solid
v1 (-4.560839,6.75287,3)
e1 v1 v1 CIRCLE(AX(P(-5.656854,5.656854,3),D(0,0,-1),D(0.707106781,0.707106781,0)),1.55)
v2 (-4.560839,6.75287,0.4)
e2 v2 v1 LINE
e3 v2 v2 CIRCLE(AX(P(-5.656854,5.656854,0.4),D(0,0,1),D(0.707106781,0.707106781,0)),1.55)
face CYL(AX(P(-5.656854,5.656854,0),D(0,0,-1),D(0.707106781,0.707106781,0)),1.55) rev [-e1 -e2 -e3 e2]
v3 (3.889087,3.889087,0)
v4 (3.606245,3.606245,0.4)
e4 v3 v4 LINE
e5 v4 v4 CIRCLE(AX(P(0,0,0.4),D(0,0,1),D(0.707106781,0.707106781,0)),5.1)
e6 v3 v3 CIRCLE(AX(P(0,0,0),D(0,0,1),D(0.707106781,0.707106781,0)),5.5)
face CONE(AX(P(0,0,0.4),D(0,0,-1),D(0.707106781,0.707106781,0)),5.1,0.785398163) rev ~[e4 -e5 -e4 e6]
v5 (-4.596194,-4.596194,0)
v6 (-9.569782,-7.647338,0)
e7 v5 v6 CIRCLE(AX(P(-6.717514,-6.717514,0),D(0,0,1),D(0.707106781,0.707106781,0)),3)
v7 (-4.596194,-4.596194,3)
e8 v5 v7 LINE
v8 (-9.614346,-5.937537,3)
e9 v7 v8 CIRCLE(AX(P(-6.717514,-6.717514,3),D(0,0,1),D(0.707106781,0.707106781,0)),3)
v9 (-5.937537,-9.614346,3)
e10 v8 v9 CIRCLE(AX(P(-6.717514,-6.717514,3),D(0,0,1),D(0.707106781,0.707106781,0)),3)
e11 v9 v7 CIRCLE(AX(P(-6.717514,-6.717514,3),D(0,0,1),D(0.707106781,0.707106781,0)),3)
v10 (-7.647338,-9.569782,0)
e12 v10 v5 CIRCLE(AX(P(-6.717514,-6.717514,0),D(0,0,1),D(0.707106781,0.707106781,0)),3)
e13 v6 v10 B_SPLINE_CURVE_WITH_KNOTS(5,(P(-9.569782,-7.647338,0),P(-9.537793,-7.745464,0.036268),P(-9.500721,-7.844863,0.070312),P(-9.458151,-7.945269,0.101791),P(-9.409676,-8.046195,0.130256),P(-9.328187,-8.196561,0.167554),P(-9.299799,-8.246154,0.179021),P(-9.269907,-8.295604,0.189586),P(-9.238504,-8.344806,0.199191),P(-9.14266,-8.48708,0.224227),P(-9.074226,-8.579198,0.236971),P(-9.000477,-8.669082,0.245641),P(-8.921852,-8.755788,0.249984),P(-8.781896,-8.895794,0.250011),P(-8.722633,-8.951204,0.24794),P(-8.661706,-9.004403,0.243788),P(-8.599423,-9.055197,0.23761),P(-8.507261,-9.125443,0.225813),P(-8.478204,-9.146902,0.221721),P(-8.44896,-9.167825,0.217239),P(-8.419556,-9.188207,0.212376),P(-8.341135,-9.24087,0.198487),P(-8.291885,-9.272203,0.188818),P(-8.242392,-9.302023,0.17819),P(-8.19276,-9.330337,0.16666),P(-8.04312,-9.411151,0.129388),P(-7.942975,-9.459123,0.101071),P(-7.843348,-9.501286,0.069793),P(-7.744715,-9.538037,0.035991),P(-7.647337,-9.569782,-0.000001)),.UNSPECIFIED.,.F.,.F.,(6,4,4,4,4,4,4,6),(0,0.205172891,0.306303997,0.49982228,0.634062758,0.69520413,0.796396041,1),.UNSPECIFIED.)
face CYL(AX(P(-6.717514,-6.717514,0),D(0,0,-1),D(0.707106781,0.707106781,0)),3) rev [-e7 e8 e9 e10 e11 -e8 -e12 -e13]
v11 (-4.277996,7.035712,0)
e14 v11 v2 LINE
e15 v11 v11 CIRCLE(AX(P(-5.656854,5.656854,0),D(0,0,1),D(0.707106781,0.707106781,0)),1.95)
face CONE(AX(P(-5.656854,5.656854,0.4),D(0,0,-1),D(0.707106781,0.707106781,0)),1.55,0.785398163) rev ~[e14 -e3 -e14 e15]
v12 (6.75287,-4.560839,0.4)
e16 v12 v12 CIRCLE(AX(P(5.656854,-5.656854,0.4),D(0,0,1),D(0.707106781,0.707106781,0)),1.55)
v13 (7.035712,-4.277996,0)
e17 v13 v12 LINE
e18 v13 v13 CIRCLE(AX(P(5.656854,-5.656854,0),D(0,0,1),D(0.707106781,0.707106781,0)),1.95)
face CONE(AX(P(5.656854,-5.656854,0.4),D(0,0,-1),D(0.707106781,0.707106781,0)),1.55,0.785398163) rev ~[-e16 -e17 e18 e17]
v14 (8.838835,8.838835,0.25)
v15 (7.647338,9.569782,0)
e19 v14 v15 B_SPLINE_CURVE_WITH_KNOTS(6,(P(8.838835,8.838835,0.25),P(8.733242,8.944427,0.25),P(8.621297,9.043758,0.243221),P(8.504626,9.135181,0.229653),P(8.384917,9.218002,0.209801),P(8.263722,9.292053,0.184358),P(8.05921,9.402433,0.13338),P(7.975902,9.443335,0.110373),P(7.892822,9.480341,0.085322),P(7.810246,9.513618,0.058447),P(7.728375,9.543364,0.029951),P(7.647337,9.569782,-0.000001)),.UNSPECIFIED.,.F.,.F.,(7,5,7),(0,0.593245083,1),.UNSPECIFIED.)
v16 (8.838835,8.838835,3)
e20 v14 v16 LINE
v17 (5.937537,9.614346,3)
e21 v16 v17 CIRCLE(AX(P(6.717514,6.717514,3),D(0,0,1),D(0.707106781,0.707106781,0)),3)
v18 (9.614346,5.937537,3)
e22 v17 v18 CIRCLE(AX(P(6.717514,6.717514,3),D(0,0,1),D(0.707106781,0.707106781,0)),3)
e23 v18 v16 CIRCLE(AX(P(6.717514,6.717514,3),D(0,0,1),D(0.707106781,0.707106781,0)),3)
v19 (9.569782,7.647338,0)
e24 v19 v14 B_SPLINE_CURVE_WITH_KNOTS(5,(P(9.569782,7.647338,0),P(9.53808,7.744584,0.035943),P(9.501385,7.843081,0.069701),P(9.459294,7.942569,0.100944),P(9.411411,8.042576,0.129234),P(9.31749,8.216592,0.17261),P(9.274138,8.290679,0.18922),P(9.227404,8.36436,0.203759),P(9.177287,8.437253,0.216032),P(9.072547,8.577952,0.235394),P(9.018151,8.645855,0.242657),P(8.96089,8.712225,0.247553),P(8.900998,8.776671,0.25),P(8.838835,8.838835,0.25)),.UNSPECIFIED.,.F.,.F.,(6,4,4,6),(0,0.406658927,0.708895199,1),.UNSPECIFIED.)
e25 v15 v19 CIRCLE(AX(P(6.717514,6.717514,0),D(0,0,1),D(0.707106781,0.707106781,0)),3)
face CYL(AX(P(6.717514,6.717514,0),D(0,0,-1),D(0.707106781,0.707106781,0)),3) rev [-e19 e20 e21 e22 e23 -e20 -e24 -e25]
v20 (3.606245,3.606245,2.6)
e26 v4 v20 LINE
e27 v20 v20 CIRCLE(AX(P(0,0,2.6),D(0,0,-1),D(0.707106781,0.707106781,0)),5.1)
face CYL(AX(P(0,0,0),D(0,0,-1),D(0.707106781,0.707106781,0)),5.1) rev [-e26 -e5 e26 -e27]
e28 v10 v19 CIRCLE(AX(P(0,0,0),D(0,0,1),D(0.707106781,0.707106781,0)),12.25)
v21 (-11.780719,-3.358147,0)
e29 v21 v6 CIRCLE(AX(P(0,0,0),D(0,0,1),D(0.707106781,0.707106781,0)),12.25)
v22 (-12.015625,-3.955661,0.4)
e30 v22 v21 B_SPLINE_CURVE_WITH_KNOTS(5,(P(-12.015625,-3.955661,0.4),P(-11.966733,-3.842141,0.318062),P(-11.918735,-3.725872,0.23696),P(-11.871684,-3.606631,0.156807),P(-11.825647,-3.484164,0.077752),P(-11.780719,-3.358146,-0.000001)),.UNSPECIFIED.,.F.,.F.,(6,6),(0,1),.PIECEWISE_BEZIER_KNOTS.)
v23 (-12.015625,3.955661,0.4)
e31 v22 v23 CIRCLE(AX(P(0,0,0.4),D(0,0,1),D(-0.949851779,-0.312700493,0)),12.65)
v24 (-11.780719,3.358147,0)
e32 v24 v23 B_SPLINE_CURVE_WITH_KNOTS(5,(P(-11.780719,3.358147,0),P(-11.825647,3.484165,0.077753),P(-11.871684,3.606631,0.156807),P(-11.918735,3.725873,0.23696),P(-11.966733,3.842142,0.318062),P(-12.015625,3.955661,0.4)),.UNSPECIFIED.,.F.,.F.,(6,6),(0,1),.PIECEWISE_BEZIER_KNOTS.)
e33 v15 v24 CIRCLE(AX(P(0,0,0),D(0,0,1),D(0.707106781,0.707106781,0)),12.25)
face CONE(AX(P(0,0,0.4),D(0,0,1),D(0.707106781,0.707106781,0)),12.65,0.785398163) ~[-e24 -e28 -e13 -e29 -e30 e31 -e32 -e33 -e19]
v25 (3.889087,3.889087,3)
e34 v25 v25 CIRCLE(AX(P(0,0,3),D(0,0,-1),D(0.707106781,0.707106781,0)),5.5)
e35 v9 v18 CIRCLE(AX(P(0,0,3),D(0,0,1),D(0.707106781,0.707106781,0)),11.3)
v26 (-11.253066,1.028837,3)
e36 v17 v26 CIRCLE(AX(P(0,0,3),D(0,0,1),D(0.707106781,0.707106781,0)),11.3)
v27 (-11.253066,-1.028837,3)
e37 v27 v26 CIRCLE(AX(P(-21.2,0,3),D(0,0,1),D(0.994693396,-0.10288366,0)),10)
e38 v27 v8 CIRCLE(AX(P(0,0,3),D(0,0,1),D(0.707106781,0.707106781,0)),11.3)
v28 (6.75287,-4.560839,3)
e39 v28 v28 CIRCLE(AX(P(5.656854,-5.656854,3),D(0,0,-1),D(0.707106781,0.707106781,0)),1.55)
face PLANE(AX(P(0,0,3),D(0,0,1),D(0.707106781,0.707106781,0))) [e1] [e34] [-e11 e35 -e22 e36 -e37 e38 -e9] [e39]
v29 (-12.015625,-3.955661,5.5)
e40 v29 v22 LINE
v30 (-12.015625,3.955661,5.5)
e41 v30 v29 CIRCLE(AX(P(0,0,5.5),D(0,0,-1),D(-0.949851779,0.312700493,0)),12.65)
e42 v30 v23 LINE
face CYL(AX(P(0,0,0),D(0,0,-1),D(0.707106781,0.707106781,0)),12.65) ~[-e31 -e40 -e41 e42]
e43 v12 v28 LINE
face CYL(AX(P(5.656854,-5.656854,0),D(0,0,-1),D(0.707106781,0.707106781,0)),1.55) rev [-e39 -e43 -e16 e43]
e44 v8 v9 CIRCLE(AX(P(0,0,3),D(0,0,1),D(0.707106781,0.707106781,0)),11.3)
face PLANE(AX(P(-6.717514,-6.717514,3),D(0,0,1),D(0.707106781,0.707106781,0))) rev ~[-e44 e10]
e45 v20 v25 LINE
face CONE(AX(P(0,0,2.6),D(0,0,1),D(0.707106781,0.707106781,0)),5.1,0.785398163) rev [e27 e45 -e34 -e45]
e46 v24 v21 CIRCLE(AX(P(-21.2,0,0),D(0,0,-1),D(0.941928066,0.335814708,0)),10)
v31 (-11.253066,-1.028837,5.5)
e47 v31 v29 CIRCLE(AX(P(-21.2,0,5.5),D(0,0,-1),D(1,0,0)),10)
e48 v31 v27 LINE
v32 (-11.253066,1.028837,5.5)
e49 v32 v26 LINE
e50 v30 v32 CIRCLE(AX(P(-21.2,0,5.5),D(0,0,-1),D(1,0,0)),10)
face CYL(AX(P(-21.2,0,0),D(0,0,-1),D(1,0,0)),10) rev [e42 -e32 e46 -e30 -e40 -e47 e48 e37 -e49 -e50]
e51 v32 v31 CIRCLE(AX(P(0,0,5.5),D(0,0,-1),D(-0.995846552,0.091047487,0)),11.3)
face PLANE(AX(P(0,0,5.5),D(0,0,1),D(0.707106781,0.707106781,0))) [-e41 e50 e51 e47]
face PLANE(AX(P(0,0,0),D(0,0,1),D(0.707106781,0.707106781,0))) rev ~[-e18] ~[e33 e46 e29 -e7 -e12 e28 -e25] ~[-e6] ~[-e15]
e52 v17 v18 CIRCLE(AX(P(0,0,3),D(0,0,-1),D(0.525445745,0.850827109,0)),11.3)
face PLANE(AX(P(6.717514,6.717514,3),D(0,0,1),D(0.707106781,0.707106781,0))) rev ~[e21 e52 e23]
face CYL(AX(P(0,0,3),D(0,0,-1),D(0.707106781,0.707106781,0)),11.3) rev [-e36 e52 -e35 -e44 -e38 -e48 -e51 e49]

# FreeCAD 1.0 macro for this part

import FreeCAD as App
import Part
import Sketcher
from FreeCAD import Vector


def edges_at(feature, points):
    """Names of the edges that pass closest to the given points."""
    edges = feature.Shape.Edges
    near = lambda p: min(range(len(edges)), key=lambda i: edges[i].distToShape(Part.Vertex(*p))[0])
    return sorted({f"Edge{near(p) + 1}" for p in points})

doc = App.newDocument("Part")
params = doc.addObject("Spreadsheet::Sheet", "Params")
for row, (alias, value) in enumerate([
    ("sketch1_diameter", "20 mm"),
    ("pad1_length", "10 mm"),
    ("sketch2_diameter", "6 mm"),
    ("pad2_length", "3 mm"),
    ("sketch3_diameter", "6 mm"),
    ("pad3_length", "3 mm"),
    ("sketch4_diameter", "3.1 mm"),
    ("pad4_length", "5 mm"),
    ("sketch5_diameter", "3.1 mm"),
    ("pad5_length", "5 mm"),
    ("sketch6_diameter", "10.2 mm"),
    ("pad6_length", "10 mm"),
    ("sketch7_diameter", "22.6 mm"),
    ("pad7_length", "5.5 mm"),
    ("sketch8_diameter", "25.3 mm"),
    ("pad8_length", "5.5 mm"),
    ("chamfer_size", "0.4 mm"),
], start=1):
    params.set(f"A{row}", alias)
    params.set(f"B{row}", "=" + value)
    params.setAlias(f"B{row}", alias)

body = doc.addObject("PartDesign::Body", "Body")

# Sketch on XY plane
sketch1 = body.newObject("Sketcher::SketchObject", "Sketch")
sketch1.AttachmentSupport = (doc.getObject("XY_Plane"), [""])
sketch1.MapMode = "FlatFace"
sketch1.addGeometry(Part.Circle(Vector(-21, 0, 0), Vector(0, 0, 1), 10), False)
sketch1.addConstraint([
    Sketcher.Constraint("PointOnObject", 0, 3, -1),
    Sketcher.Constraint("Diameter", 0, 20.0),
    Sketcher.Constraint("DistanceX", 0, 3, -1, 1, 21.2),
])
sketch1.setExpression("Constraints[1]", "Params.sketch1_diameter")
pad1 = body.newObject("PartDesign::Pad", "Pad")
pad1.Profile = sketch1
pad1.setExpression("Length", "Params.pad1_length")
body2 = doc.addObject("PartDesign::Body", "Body001")

# Sketch on XY plane
sketch2 = body2.newObject("Sketcher::SketchObject", "Sketch001")
sketch2.AttachmentSupport = (doc.getObject("XY_Plane001"), [""])
sketch2.MapMode = "FlatFace"
sketch2.addGeometry(Part.Circle(Vector(-9.5, 0, 0), Vector(0, 0, 1), 3), False)
sketch2.addConstraint([
    Sketcher.Constraint("PointOnObject", 0, 3, -1),
    Sketcher.Constraint("Diameter", 0, 6.0),
    Sketcher.Constraint("DistanceX", 0, 3, -1, 1, 9.5),
])
sketch2.setExpression("Constraints[1]", "Params.sketch2_diameter")
pad2 = body2.newObject("PartDesign::Pad", "Pad001")
pad2.Profile = sketch2
pad2.setExpression("Length", "Params.pad2_length")
body3 = doc.addObject("PartDesign::Body", "Body002")
body3.AllowCompound = True

# Sketch on XY plane
sketch3 = body3.newObject("Sketcher::SketchObject", "Sketch002")
sketch3.AttachmentSupport = (doc.getObject("XY_Plane002"), [""])
sketch3.MapMode = "FlatFace"
sketch3.addGeometry(Part.Circle(Vector(9.5, 0, 0), Vector(0, 0, 1), 3), False)
sketch3.addConstraint([
    Sketcher.Constraint("PointOnObject", 0, 3, -1),
    Sketcher.Constraint("Diameter", 0, 6.0),
    Sketcher.Constraint("DistanceX", -1, 1, 0, 3, 9.5),
])
sketch3.setExpression("Constraints[1]", "Params.sketch3_diameter")
pad3 = body3.newObject("PartDesign::Pad", "Pad002")
pad3.Profile = sketch3
pad3.setExpression("Length", "Params.pad3_length")
doc.recompute()

boolean = body3.newObject("PartDesign::Boolean", "Boolean")
boolean.Type = "Fuse"
boolean.addObjects([body2])
body4 = doc.addObject("PartDesign::Body", "Body003")

# Sketch on XY plane
sketch4 = body4.newObject("Sketcher::SketchObject", "Sketch003")
sketch4.AttachmentSupport = (doc.getObject("XY_Plane003"), [""])
sketch4.MapMode = "FlatFace"
sketch4.addGeometry(Part.Circle(Vector(0, -8, 0), Vector(0, 0, 1), 1.6), False)
sketch4.addConstraint([
    Sketcher.Constraint("PointOnObject", 0, 3, -2),
    Sketcher.Constraint("Diameter", 0, 3.1),
    Sketcher.Constraint("DistanceY", 0, 3, -1, 1, 8.0),
])
sketch4.setExpression("Constraints[1]", "Params.sketch4_diameter")
pad4 = body4.newObject("PartDesign::Pad", "Pad003")
pad4.Profile = sketch4
pad4.setExpression("Length", "Params.pad4_length")
body5 = doc.addObject("PartDesign::Body", "Body004")
body5.AllowCompound = True

# Sketch on XY plane
sketch5 = body5.newObject("Sketcher::SketchObject", "Sketch004")
sketch5.AttachmentSupport = (doc.getObject("XY_Plane004"), [""])
sketch5.MapMode = "FlatFace"
sketch5.addGeometry(Part.Circle(Vector(0, 8, 0), Vector(0, 0, 1), 1.6), False)
sketch5.addConstraint([
    Sketcher.Constraint("PointOnObject", 0, 3, -2),
    Sketcher.Constraint("Diameter", 0, 3.1),
    Sketcher.Constraint("DistanceY", -1, 1, 0, 3, 8.0),
])
sketch5.setExpression("Constraints[1]", "Params.sketch5_diameter")
pad5 = body5.newObject("PartDesign::Pad", "Pad004")
pad5.Profile = sketch5
pad5.setExpression("Length", "Params.pad5_length")
doc.recompute()

boolean2 = body5.newObject("PartDesign::Boolean", "Boolean001")
boolean2.Type = "Fuse"
boolean2.addObjects([body4])
body6 = doc.addObject("PartDesign::Body", "Body005")

# Sketch on XY plane
sketch6 = body6.newObject("Sketcher::SketchObject", "Sketch005")
sketch6.AttachmentSupport = (doc.getObject("XY_Plane005"), [""])
sketch6.MapMode = "FlatFace"
sketch6.addGeometry(Part.Circle(Vector(0, 0, 0), Vector(0, 0, 1), 5), False)
sketch6.addConstraint([
    Sketcher.Constraint("Coincident", 0, 3, -1, 1),
    Sketcher.Constraint("Diameter", 0, 10.2),
])
sketch6.setExpression("Constraints[1]", "Params.sketch6_diameter")
pad6 = body6.newObject("PartDesign::Pad", "Pad005")
pad6.Profile = sketch6
pad6.setExpression("Length", "Params.pad6_length")
body7 = doc.addObject("PartDesign::Body", "Body006")

# Sketch on XY plane
sketch7 = body7.newObject("Sketcher::SketchObject", "Sketch006")
sketch7.AttachmentSupport = (doc.getObject("XY_Plane006"), [""])
sketch7.MapMode = "FlatFace"
sketch7.AttachmentOffset = App.Placement(Vector(0, 0, 3), App.Rotation())
sketch7.addGeometry(Part.Circle(Vector(0, 0, 0), Vector(0, 0, 1), 11), False)
sketch7.addConstraint([
    Sketcher.Constraint("Coincident", 0, 3, -1, 1),
    Sketcher.Constraint("Diameter", 0, 22.6),
])
sketch7.setExpression("Constraints[1]", "Params.sketch7_diameter")
pad7 = body7.newObject("PartDesign::Pad", "Pad006")
pad7.Profile = sketch7
pad7.setExpression("Length", "Params.pad7_length")
body8 = doc.addObject("PartDesign::Body", "Body007")

# Sketch on XY plane
sketch8 = body8.newObject("Sketcher::SketchObject", "Sketch007")
sketch8.AttachmentSupport = (doc.getObject("XY_Plane007"), [""])
sketch8.MapMode = "FlatFace"
sketch8.addGeometry(Part.Circle(Vector(0, 0, 0), Vector(0, 0, 1), 13), False)
sketch8.addConstraint([
    Sketcher.Constraint("Coincident", 0, 3, -1, 1),
    Sketcher.Constraint("Diameter", 0, 25.3),
])
sketch8.setExpression("Constraints[1]", "Params.sketch8_diameter")
pad8 = body8.newObject("PartDesign::Pad", "Pad007")
pad8.Profile = sketch8
pad8.setExpression("Length", "Params.pad8_length")
doc.recompute()

boolean3 = body8.newObject("PartDesign::Boolean", "Boolean002")
boolean3.Type = "Cut"
boolean3.addObjects([body7])
doc.recompute()

boolean4 = body8.newObject("PartDesign::Boolean", "Boolean003")
boolean4.Type = "Cut"
boolean4.addObjects([body6])
doc.recompute()

boolean5 = body8.newObject("PartDesign::Boolean", "Boolean004")
boolean5.Type = "Cut"
boolean5.addObjects([body5])
doc.recompute()

chamfer = body8.newObject("PartDesign::Chamfer", "Chamfer")
chamfer.Base = (boolean5, edges_at(boolean5, [
    (-12.65, 0, 0),
    (-1.55, -8, 0),
    (-5.1, 0, 0),
    (-1.55, 8, 0),
    (-5.1, 0, 3),
]))
chamfer.setExpression("Size", "Params.chamfer_size")
doc.recompute()

boolean6 = body8.newObject("PartDesign::Boolean", "Boolean005")
boolean6.Type = "Cut"
boolean6.addObjects([body3])
body9 = doc.addObject("PartDesign::Body", "Body008")
doc.recompute()

body8.Placement = App.Placement(Vector(0, 0, 0), App.Rotation(Vector(0, 0, 1), 45))
boolean7 = body9.newObject("PartDesign::Boolean", "Boolean006")
boolean7.Type = "Fuse"
boolean7.addObjects([body8])
doc.recompute()

boolean8 = body9.newObject("PartDesign::Boolean", "Boolean007")
boolean8.Type = "Cut"
boolean8.addObjects([body])

doc.recompute()
